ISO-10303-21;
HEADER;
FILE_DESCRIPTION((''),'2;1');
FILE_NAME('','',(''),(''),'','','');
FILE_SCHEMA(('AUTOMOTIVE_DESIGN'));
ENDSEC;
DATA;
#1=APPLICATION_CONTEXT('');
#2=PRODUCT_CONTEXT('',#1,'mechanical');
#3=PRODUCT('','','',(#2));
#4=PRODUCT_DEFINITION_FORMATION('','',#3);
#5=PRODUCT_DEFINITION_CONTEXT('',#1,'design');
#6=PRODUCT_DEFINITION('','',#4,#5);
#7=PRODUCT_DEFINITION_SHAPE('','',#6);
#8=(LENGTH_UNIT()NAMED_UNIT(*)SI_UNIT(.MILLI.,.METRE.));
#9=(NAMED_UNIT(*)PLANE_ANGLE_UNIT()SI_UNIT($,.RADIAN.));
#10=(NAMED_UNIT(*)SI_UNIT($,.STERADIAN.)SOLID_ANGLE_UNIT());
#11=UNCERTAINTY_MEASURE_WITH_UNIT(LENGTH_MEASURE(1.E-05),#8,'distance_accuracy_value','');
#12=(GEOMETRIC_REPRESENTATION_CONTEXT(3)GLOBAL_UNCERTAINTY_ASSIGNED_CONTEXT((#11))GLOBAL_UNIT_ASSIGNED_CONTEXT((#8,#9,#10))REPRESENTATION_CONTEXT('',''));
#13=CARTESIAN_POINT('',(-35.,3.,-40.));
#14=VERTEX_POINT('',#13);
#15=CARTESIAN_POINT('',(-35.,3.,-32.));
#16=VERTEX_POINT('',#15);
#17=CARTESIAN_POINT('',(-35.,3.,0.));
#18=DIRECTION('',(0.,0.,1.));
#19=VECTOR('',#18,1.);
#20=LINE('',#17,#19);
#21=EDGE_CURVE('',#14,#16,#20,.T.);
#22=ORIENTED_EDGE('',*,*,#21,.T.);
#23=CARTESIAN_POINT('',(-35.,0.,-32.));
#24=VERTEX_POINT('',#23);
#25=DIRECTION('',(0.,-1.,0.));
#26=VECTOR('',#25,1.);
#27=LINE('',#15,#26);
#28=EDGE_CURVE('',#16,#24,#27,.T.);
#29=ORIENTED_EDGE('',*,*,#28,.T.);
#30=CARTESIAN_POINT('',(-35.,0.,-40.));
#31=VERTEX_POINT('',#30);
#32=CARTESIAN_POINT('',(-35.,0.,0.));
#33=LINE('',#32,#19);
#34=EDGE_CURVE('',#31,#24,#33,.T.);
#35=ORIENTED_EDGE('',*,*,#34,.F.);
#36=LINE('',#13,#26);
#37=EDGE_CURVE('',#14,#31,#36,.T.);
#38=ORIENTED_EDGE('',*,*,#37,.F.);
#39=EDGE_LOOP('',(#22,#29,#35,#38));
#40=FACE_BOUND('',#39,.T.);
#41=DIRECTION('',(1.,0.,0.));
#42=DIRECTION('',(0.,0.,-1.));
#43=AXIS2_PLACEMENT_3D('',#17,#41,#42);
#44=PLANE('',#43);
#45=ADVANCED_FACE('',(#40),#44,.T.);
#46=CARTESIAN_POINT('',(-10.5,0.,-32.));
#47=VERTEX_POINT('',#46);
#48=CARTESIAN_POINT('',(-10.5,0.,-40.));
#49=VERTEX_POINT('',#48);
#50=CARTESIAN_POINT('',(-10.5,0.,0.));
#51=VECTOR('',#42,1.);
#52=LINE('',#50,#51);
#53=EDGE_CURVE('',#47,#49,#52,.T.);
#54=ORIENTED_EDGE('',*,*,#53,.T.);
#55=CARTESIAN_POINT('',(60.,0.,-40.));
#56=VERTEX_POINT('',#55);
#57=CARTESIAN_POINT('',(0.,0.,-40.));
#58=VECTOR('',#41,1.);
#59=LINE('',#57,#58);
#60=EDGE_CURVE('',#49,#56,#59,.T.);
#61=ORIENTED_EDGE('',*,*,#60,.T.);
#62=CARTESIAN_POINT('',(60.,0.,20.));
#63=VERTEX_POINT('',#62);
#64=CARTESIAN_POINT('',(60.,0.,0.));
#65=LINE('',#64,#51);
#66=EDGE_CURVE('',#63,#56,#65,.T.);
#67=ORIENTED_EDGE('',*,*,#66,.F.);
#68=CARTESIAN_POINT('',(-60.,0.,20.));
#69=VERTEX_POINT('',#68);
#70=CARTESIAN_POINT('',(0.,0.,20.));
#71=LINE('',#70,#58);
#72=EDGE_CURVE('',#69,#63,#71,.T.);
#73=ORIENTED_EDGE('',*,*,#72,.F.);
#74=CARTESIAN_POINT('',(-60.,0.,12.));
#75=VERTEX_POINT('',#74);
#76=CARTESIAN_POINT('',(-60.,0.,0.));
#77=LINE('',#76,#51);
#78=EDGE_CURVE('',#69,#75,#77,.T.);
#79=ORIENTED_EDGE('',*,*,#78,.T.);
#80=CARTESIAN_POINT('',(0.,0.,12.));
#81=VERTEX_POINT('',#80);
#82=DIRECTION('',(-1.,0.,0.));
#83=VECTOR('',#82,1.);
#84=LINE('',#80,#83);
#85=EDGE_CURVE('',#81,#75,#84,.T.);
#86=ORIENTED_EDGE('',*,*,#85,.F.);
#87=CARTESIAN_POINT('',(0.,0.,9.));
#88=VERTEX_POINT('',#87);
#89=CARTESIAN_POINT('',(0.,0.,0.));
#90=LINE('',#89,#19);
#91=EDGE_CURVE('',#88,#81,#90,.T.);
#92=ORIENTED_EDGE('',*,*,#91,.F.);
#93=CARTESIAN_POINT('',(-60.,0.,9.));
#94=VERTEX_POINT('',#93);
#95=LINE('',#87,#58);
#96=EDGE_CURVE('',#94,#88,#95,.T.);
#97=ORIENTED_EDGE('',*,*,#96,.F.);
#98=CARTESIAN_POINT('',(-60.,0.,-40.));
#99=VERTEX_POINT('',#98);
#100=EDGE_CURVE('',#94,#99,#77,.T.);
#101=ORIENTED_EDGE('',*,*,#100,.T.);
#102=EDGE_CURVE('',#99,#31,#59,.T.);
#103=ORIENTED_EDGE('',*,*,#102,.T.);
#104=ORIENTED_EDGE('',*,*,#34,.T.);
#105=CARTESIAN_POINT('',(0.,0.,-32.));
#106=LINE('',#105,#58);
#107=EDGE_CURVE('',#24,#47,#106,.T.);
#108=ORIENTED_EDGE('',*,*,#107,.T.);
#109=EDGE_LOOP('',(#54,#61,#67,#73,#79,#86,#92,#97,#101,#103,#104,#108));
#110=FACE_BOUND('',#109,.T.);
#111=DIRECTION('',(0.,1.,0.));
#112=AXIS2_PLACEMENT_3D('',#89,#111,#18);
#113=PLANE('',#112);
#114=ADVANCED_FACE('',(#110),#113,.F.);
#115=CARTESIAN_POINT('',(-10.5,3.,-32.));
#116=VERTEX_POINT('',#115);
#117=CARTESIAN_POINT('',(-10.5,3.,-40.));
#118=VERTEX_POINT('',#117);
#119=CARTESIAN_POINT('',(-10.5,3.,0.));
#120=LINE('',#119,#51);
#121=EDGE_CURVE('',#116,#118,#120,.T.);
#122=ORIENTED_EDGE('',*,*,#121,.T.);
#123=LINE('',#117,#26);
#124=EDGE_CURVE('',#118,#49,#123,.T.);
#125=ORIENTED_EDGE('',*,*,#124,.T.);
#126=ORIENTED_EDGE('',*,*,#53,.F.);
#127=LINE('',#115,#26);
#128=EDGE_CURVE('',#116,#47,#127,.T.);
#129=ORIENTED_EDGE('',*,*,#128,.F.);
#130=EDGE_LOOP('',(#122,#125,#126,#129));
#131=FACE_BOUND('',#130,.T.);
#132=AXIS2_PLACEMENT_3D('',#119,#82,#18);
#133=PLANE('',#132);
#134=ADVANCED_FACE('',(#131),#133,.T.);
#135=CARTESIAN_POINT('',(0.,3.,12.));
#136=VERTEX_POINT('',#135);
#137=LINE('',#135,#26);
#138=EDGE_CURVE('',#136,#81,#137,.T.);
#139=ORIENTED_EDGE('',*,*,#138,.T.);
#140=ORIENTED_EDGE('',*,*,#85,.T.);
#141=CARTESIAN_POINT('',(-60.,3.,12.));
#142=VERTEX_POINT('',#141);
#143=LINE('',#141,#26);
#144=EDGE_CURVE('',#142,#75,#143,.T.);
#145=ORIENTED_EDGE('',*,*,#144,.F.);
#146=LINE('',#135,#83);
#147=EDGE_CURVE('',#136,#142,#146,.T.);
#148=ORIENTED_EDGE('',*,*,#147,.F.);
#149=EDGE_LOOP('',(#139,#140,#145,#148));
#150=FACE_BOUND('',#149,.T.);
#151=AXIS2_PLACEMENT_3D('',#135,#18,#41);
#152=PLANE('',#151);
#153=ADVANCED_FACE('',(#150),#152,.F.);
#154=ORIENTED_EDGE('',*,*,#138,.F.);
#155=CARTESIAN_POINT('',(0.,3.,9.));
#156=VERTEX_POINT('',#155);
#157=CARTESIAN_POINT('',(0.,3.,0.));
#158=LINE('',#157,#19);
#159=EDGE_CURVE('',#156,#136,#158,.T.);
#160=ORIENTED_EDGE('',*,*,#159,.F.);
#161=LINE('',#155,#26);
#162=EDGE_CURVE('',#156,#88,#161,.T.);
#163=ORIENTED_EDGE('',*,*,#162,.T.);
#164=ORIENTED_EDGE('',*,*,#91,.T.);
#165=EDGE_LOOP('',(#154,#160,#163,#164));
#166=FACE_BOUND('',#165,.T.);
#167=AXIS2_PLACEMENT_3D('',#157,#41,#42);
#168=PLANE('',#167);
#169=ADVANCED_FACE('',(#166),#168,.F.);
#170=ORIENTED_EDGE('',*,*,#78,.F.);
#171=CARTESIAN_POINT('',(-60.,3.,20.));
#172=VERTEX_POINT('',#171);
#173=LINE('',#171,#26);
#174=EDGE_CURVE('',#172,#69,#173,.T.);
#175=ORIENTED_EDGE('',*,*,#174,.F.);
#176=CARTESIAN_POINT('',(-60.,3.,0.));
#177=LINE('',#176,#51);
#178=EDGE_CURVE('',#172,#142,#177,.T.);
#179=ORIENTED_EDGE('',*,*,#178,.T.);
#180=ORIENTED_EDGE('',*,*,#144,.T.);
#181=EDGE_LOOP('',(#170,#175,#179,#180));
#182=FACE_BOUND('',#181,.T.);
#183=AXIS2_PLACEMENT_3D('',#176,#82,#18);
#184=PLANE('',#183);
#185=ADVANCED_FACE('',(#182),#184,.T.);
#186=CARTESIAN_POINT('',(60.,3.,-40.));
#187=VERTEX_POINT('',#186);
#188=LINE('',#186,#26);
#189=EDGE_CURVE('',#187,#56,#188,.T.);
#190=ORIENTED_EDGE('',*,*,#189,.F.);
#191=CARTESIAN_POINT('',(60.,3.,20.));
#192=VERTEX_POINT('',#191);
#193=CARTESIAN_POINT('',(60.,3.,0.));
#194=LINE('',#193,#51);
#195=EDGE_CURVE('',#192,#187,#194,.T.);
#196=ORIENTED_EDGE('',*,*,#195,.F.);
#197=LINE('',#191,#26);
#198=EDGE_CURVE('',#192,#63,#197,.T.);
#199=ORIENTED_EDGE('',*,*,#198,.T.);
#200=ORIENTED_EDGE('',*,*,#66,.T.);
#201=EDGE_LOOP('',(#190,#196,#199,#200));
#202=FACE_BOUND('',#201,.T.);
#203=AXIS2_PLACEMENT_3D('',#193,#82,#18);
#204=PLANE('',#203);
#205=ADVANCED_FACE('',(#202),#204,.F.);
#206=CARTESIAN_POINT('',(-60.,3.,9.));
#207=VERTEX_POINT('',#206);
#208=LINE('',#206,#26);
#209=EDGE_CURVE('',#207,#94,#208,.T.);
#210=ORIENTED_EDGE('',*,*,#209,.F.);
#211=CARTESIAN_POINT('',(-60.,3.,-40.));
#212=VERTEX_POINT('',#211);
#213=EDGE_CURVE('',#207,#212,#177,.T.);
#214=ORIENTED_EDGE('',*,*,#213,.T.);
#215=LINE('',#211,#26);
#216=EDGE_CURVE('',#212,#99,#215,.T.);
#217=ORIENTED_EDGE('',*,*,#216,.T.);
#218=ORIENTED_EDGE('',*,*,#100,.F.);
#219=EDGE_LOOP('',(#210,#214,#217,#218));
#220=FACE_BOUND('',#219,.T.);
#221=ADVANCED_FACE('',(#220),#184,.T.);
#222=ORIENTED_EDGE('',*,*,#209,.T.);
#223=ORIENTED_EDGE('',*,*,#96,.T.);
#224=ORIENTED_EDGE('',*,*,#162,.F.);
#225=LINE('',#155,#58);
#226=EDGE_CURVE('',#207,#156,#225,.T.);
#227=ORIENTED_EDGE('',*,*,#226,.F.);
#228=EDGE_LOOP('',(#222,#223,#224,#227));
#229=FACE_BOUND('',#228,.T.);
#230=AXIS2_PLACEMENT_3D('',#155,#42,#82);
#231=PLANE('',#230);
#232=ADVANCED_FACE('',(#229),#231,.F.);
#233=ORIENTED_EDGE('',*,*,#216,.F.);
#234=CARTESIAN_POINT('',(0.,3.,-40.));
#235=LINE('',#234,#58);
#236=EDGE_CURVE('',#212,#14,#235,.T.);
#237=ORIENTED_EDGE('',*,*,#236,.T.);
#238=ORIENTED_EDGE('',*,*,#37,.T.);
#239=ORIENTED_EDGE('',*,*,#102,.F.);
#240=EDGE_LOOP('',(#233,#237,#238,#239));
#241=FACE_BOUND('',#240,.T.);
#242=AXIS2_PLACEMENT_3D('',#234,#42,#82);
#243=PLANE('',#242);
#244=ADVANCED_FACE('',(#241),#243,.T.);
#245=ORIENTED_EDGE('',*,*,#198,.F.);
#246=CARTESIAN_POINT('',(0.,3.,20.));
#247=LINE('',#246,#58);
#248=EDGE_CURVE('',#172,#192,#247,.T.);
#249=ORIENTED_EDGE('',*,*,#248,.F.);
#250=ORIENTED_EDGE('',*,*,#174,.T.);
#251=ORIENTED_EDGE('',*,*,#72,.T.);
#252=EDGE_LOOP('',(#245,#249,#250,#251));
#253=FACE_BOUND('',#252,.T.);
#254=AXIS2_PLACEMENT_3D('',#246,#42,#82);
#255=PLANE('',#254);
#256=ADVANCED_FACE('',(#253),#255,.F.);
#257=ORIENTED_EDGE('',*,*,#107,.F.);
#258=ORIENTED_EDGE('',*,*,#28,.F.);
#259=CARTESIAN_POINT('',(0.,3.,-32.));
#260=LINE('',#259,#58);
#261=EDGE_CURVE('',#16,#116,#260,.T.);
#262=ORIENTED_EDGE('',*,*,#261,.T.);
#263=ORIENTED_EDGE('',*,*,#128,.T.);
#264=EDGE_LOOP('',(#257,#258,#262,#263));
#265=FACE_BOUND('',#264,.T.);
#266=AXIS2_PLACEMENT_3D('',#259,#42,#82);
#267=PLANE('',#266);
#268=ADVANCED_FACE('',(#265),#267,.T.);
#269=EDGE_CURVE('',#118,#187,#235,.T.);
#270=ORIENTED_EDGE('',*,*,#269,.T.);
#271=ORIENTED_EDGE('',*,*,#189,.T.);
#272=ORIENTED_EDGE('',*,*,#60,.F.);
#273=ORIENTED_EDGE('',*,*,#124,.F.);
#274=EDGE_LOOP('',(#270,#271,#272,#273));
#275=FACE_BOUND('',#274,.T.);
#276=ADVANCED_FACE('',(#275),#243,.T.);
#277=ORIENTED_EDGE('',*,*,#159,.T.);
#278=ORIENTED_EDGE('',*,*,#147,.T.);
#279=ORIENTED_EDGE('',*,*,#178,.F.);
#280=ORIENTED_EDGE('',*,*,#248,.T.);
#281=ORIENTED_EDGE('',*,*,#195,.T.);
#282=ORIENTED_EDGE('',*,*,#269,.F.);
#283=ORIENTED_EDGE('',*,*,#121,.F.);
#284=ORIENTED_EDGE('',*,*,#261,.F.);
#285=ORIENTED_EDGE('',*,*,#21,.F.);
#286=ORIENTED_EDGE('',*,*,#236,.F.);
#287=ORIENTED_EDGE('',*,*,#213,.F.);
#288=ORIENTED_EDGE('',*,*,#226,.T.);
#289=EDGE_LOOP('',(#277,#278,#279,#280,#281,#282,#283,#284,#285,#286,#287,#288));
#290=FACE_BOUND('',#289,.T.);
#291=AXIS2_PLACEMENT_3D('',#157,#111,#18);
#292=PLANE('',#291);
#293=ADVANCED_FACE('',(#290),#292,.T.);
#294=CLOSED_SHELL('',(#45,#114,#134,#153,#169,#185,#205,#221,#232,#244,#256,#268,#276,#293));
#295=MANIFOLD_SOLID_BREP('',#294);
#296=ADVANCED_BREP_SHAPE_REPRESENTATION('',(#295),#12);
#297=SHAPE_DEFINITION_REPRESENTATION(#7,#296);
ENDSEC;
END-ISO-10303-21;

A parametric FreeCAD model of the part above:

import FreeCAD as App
import Part
import Sketcher

V = App.Vector
Q = App.Units.Quantity

doc = App.newDocument("Part")
params = doc.addObject("Spreadsheet::Sheet", "Params")
for row, (alias, value) in enumerate([
    ("sketch1_width", "60 mm"),
    ("sketch1_width2", "25 mm"),
    ("sketch1_height", "49 mm"),
    ("sketch1_height2", "3 mm"),
    ("sketch1_width3", "70.5 mm"),
    ("pad1_length", "3 mm"),
], start=1):
    params.set(f"A{row}", alias)
    params.set(f"B{row}", "=" + value)
    params.setAlias(f"B{row}", alias)

body = doc.addObject("PartDesign::Body", "Body")

sketch1 = body.newObject("Sketcher::SketchObject", "Sketch")
sketch1.AttachmentSupport = (doc.getObject("XZ_Plane"), [""])
sketch1.MapMode = "FlatFace"
sketch1.addGeometry(Part.LineSegment(V(-60, -40, 0), V(-60, 9, 0)), False)
sketch1.addGeometry(Part.LineSegment(V(-60, 9, 0), V(0, 9, 0)), False)
sketch1.addGeometry(Part.LineSegment(V(0, 9, 0), V(0, 12, 0)), False)
sketch1.addGeometry(Part.LineSegment(V(0, 12, 0), V(-60, 12, 0)), False)
sketch1.addGeometry(Part.LineSegment(V(-60, 12, 0), V(-60, 20, 0)), False)
sketch1.addGeometry(Part.LineSegment(V(-60, 20, 0), V(60, 20, 0)), False)
sketch1.addGeometry(Part.LineSegment(V(60, 20, 0), V(60, -40, 0)), False)
sketch1.addGeometry(Part.LineSegment(V(60, -40, 0), V(-10.5, -40, 0)), False)
sketch1.addGeometry(Part.LineSegment(V(-10.5, -40, 0), V(-10.5, -32, 0)), False)
sketch1.addGeometry(Part.LineSegment(V(-10.5, -32, 0), V(-35, -32, 0)), False)
sketch1.addGeometry(Part.LineSegment(V(-35, -32, 0), V(-35, -40, 0)), False)
sketch1.addGeometry(Part.LineSegment(V(-35, -40, 0), V(-60, -40, 0)), False)
sketch1.addConstraint(Sketcher.Constraint("Coincident", 0, 2, 1, 1))
sketch1.addConstraint(Sketcher.Constraint("Coincident", 1, 2, 2, 1))
sketch1.addConstraint(Sketcher.Constraint("Coincident", 2, 2, 3, 1))
sketch1.addConstraint(Sketcher.Constraint("Coincident", 3, 2, 4, 1))
sketch1.addConstraint(Sketcher.Constraint("Coincident", 4, 2, 5, 1))
sketch1.addConstraint(Sketcher.Constraint("Coincident", 5, 2, 6, 1))
sketch1.addConstraint(Sketcher.Constraint("Coincident", 6, 2, 7, 1))
sketch1.addConstraint(Sketcher.Constraint("Coincident", 7, 2, 8, 1))
sketch1.addConstraint(Sketcher.Constraint("Coincident", 8, 2, 9, 1))
sketch1.addConstraint(Sketcher.Constraint("Coincident", 9, 2, 10, 1))
sketch1.addConstraint(Sketcher.Constraint("Coincident", 10, 2, 11, 1))
sketch1.addConstraint(Sketcher.Constraint("Coincident", 11, 2, 0, 1))
sketch1.addConstraint(Sketcher.Constraint("Vertical", 0))
sketch1.addConstraint(Sketcher.Constraint("Horizontal", 1))
sketch1.addConstraint(Sketcher.Constraint("Vertical", 2))
sketch1.addConstraint(Sketcher.Constraint("Horizontal", 3))
sketch1.addConstraint(Sketcher.Constraint("Vertical", 4))
sketch1.addConstraint(Sketcher.Constraint("Horizontal", 5))
sketch1.addConstraint(Sketcher.Constraint("Vertical", 6))
sketch1.addConstraint(Sketcher.Constraint("Horizontal", 7))
sketch1.addConstraint(Sketcher.Constraint("Vertical", 8))
sketch1.addConstraint(Sketcher.Constraint("Horizontal", 9))
sketch1.addConstraint(Sketcher.Constraint("Vertical", 10))
sketch1.addConstraint(Sketcher.Constraint("Horizontal", 11))
sketch1.addConstraint(Sketcher.Constraint("Symmetric", 6, 2, 11, 2, -2))
sketch1.addConstraint(Sketcher.Constraint("PointOnObject", 1, 2, -2))
sketch1.addConstraint(Sketcher.Constraint("Vertical", 0, 2, 3, 2))
sketch1.addConstraint(Sketcher.Constraint("Equal", 3, 6))
sketch1.addConstraint(Sketcher.Constraint("Equal", 4, 8))
sketch1.addConstraint(Sketcher.Constraint("DistanceX", 1, 1, 1, 2, Q("60 mm")))
sketch1.addConstraint(Sketcher.Constraint("DistanceX", 11, 2, 11, 1, Q("25 mm")))
sketch1.addConstraint(Sketcher.Constraint("DistanceY", 0, 1, 0, 2, Q("49 mm")))
sketch1.addConstraint(Sketcher.Constraint("DistanceY", 2, 1, 2, 2, Q("3 mm")))
sketch1.addConstraint(Sketcher.Constraint("DistanceX", 7, 2, 7, 1, Q("70.5 mm")))
sketch1.addConstraint(Sketcher.Constraint("DistanceY", -1, 1, 0, 2, Q("9 mm")))
sketch1.setExpression("Constraints[29]", "Params.sketch1_width")
sketch1.setExpression("Constraints[30]", "Params.sketch1_width2")
sketch1.setExpression("Constraints[31]", "Params.sketch1_height")
sketch1.setExpression("Constraints[32]", "Params.sketch1_height2")
sketch1.setExpression("Constraints[33]", "Params.sketch1_width3")
pad1 = body.newObject("PartDesign::Pad", "Pad")
pad1.Profile = sketch1
pad1.setExpression("Length", "Params.pad1_length")
pad1.Reversed = True

doc.recompute()
